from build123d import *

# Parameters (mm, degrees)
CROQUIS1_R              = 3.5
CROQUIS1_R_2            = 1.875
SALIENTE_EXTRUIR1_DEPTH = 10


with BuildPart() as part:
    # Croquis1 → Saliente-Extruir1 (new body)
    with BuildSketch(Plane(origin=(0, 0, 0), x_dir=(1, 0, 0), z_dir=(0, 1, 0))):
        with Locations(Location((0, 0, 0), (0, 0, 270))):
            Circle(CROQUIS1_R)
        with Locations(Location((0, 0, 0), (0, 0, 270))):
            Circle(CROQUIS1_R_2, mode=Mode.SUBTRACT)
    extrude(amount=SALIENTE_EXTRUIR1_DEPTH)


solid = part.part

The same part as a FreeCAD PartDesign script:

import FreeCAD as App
import Part
import Sketcher

V = App.Vector

doc = App.newDocument("Part")
body = doc.addObject("PartDesign::Body", "Body")

sketch1 = doc.addObject("Sketcher::SketchObject", "Sketch")
body.addObject(sketch1)
sketch1.AttachmentSupport = (doc.XZ_Plane, [""])
sketch1.MapMode = "FlatFace"
sketch1.addGeometry([
    Part.Circle(V(0, 0, 0), V(0, 0, 1), 3.5),
    Part.Circle(V(0, 0, 0), V(0, 0, 1), 1.9),
], False)
sketch1.addConstraint([
    Sketcher.Constraint("Coincident", 0, 3, -1, 1),
    Sketcher.Constraint("Coincident", 1, 3, -1, 1),
    Sketcher.Constraint("Diameter", 0, 7.0),
    Sketcher.Constraint("Diameter", 1, 3.75),
])
pad1 = doc.addObject("PartDesign::Pad", "Pad")
body.addObject(pad1)
pad1.Profile = sketch1
pad1.Length = 10
pad1.Reversed = True

doc.recompute()
